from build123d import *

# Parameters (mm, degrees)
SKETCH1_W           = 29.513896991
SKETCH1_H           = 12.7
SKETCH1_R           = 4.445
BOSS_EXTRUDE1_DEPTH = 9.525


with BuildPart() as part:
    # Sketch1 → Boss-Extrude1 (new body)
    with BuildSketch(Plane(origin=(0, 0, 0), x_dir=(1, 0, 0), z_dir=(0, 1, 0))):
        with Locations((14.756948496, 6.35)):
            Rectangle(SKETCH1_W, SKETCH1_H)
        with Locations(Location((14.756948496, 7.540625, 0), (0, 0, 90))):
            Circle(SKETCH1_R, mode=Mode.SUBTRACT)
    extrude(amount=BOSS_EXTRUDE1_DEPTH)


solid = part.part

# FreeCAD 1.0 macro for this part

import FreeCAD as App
import Part
import Sketcher
Q = App.Units.Quantity

doc = App.newDocument("Part")
params = doc.addObject("Spreadsheet::Sheet", "Params")
for row, (alias, value) in enumerate([
    ("sketch1_diameter", "0.35 in"),
    ("sketch1_height", "0.5 in"),
    ("pad1_length", "0.375 in"),
], start=1):
    params.set(f"A{row}", alias)
    params.set(f"B{row}", "=" + value)
    params.setAlias(f"B{row}", alias)

body = doc.addObject("PartDesign::Body", "Body")

# Sketch on XZ plane
sketch1 = doc.addObject("Sketcher::SketchObject", "Sketch")
body.addObject(sketch1)
sketch1.AttachmentSupport = (doc.XZ_Plane, [""])
sketch1.MapMode = "FlatFace"
sketch1.addGeometry(Part.LineSegment(App.Vector(0, -12.7, 0), App.Vector(0, 0, 0)), False)
sketch1.addGeometry(Part.LineSegment(App.Vector(0, 0, 0), App.Vector(29.5, 0, 0)), False)
sketch1.addGeometry(Part.LineSegment(App.Vector(29.5, 0, 0), App.Vector(29.5, -12.7, 0)), False)
sketch1.addGeometry(Part.LineSegment(App.Vector(29.5, -12.7, 0), App.Vector(0, -12.7, 0)), False)
sketch1.addGeometry(Part.Circle(App.Vector(14.8, -7.5, 0), App.Vector(0, 0, 1), 4.4), False)
sketch1.addConstraint(Sketcher.Constraint("Coincident", 0, 2, 1, 1))
sketch1.addConstraint(Sketcher.Constraint("Coincident", 1, 2, 2, 1))
sketch1.addConstraint(Sketcher.Constraint("Coincident", 2, 2, 3, 1))
sketch1.addConstraint(Sketcher.Constraint("Coincident", 3, 2, 0, 1))
sketch1.addConstraint(Sketcher.Constraint("Vertical", 0))
sketch1.addConstraint(Sketcher.Constraint("Horizontal", 1))
sketch1.addConstraint(Sketcher.Constraint("Vertical", 2))
sketch1.addConstraint(Sketcher.Constraint("Horizontal", 3))
sketch1.addConstraint(Sketcher.Constraint("Coincident", 0, 2, -1, 1))
sketch1.addConstraint(Sketcher.Constraint("Diameter", 4, Q("0.35 in")))
sketch1.addConstraint(Sketcher.Constraint("DistanceY", 0, 1, 0, 2, Q("0.5 in")))
sketch1.addConstraint(Sketcher.Constraint("DistanceY", 4, 3, -1, 1, Q("0.296875 in")))
sketch1.addConstraint(Sketcher.Constraint("DistanceX", 1, 1, 1, 2, Q("29.513897 mm")))
sketch1.addConstraint(Sketcher.Constraint("DistanceX", -1, 1, 4, 3, Q("14.756948 mm")))
sketch1.setExpression("Constraints[9]", "Params.sketch1_diameter")
sketch1.setExpression("Constraints[10]", "Params.sketch1_height")
pad1 = doc.addObject("PartDesign::Pad", "Pad")
body.addObject(pad1)
pad1.Profile = sketch1
pad1.setExpression("Length", "Params.pad1_length")
pad1.Reversed = True

doc.recompute()
